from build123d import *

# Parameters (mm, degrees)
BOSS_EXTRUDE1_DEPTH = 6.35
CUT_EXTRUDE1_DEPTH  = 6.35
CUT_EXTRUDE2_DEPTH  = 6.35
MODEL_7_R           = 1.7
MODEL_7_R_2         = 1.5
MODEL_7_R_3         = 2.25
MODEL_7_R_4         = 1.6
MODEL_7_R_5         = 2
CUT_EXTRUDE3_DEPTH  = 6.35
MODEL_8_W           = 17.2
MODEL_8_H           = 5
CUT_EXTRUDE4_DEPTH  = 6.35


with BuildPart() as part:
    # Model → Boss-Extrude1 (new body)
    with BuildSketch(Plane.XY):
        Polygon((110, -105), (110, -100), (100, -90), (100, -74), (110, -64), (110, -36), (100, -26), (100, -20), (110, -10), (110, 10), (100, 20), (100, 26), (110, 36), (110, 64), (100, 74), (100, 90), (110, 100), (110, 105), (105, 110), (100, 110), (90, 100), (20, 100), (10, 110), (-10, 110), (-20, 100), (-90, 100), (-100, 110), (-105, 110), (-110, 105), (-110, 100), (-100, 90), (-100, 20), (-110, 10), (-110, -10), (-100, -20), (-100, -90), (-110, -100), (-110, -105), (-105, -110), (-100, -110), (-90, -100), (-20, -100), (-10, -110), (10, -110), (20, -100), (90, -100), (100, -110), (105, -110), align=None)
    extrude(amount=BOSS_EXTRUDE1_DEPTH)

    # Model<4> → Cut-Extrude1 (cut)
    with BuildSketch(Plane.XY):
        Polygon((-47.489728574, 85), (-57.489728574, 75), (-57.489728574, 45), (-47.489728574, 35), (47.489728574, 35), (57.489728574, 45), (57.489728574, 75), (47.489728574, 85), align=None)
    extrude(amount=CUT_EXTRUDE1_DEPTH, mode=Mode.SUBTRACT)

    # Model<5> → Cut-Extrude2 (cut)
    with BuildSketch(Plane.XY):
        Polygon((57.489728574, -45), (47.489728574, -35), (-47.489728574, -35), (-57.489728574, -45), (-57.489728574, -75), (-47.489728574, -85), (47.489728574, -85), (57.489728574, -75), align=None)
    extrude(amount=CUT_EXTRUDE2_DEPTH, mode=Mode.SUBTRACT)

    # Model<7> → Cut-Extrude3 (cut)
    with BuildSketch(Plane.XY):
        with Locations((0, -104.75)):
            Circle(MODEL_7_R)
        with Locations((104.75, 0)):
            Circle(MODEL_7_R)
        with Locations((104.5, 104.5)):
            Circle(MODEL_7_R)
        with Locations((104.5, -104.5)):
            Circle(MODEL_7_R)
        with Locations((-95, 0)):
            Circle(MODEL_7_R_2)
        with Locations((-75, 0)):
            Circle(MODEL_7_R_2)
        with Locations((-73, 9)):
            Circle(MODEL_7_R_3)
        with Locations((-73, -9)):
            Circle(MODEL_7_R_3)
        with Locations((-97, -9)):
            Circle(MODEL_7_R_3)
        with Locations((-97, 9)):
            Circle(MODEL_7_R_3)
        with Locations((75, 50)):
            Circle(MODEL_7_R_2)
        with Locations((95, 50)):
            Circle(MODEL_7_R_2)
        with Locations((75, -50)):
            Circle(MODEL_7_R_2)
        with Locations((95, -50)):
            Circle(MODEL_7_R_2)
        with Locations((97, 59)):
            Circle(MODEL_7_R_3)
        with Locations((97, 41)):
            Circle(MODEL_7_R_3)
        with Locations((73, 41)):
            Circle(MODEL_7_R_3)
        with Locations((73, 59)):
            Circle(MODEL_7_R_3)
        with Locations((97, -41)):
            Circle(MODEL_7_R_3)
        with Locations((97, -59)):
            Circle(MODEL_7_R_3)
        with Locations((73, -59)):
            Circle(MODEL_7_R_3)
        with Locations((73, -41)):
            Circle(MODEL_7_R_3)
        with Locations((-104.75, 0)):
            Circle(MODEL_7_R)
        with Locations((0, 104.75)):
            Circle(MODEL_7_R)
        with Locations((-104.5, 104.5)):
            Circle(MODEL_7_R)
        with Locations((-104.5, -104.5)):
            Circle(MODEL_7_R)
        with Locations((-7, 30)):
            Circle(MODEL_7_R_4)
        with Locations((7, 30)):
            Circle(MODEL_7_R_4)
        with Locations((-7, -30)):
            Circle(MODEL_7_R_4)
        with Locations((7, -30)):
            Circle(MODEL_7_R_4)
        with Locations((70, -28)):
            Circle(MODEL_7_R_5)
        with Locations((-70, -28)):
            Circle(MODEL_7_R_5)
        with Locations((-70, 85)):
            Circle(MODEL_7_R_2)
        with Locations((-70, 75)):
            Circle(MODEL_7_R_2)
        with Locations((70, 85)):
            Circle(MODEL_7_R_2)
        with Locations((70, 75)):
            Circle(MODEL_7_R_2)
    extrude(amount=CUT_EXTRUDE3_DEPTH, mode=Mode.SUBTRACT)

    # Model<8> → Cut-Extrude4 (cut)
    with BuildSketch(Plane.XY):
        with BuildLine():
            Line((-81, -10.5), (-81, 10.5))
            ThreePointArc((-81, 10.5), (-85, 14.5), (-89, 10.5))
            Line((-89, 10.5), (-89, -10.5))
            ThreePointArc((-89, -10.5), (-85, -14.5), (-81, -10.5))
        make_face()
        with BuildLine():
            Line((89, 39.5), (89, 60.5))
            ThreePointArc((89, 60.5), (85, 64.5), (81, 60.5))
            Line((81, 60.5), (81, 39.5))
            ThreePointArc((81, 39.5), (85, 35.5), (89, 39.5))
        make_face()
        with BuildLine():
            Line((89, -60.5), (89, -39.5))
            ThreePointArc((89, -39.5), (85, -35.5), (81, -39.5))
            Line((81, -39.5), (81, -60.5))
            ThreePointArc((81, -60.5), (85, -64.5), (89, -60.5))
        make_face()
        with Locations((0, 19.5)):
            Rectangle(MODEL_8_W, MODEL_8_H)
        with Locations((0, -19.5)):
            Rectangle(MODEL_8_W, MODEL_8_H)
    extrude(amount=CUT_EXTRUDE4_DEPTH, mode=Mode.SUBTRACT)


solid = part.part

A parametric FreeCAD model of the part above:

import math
import FreeCAD as App
import Part
import Sketcher

V = App.Vector
Q = App.Units.Quantity


def add_polygon(sketch, points):
    """Adds a closed chain of lines whose ends are joined by coincident constraints."""
    first, n = sketch.GeometryCount, len(points)
    for a, b in zip(points, points[1:] + points[:1]):
        sketch.addGeometry(Part.LineSegment(App.Vector(*a, 0), App.Vector(*b, 0)), False)
    for i in range(n):
        sketch.addConstraint(Sketcher.Constraint("Coincident", first + i, 2, first + (i + 1) % n, 1))

doc = App.newDocument("Part")
body = doc.addObject("PartDesign::Body", "Body")

sketch1 = body.newObject("Sketcher::SketchObject", "Sketch")
sketch1.AttachmentSupport = (doc.getObject("XY_Plane"), [""])
sketch1.MapMode = "FlatFace"
add_polygon(sketch1, [(110, -105), (110, -100), (100, -90), (100, -74), (110, -64), (110, -36), (100, -26), (100, -20), (110, -10), (110, 10), (100, 20), (100, 26), (110, 36), (110, 64), (100, 74), (100, 90), (110, 100), (110, 105), (105, 110), (100, 110), (90, 100), (20, 100), (10, 110), (-10, 110), (-20, 100), (-90, 100), (-100, 110), (-105, 110), (-110, 105), (-110, 100), (-100, 90), (-100, 20), (-110, 10), (-110, -10), (-100, -20), (-100, -90), (-110, -100), (-110, -105), (-105, -110), (-100, -110), (-90, -100), (-20, -100), (-10, -110), (10, -110), (20, -100), (90, -100), (100, -110), (105, -110)])
sketch1.addConstraint([
    Sketcher.Constraint("Vertical", 0),
    Sketcher.Constraint("Vertical", 2),
    Sketcher.Constraint("Vertical", 4),
    Sketcher.Constraint("Vertical", 6),
    Sketcher.Constraint("Vertical", 8),
    Sketcher.Constraint("Vertical", 10),
    Sketcher.Constraint("Vertical", 12),
    Sketcher.Constraint("Vertical", 14),
    Sketcher.Constraint("Vertical", 16),
    Sketcher.Constraint("Horizontal", 18),
    Sketcher.Constraint("Horizontal", 20),
    Sketcher.Constraint("Horizontal", 22),
    Sketcher.Constraint("Horizontal", 24),
    Sketcher.Constraint("Horizontal", 26),
    Sketcher.Constraint("Vertical", 28),
    Sketcher.Constraint("Vertical", 30),
    Sketcher.Constraint("Vertical", 32),
    Sketcher.Constraint("Vertical", 34),
    Sketcher.Constraint("Vertical", 36),
    Sketcher.Constraint("Horizontal", 38),
    Sketcher.Constraint("Horizontal", 40),
    Sketcher.Constraint("Horizontal", 42),
    Sketcher.Constraint("Horizontal", 44),
    Sketcher.Constraint("Horizontal", 46),
    Sketcher.Constraint("Symmetric", 0, 2, 28, 2, -1, 1),
    Sketcher.Constraint("Symmetric", 1, 2, 29, 2, -1, 1),
    Sketcher.Constraint("Symmetric", 6, 2, 30, 2, -1, 1),
    Sketcher.Constraint("Symmetric", 7, 2, 31, 2, -1, 1),
    Sketcher.Constraint("Symmetric", 9, 2, 33, 2, -1, 1),
    Sketcher.Constraint("Symmetric", 14, 2, 34, 2, -1, 1),
    Sketcher.Constraint("Symmetric", 15, 2, 35, 2, -1, 1),
    Sketcher.Constraint("Symmetric", 17, 2, 37, 2, -1, 1),
    Sketcher.Constraint("Symmetric", 19, 2, 39, 2, -1, 1),
    Sketcher.Constraint("Symmetric", 21, 2, 41, 2, -1, 1),
    Sketcher.Constraint("Symmetric", 23, 2, 43, 2, -1, 1),
    Sketcher.Constraint("Symmetric", 25, 2, 45, 2, -1, 1),
    Sketcher.Constraint("Symmetric", 20, 2, 23, 2, -2),
    Sketcher.Constraint("Symmetric", 18, 2, 25, 2, -2),
    Sketcher.Constraint("Symmetric", 16, 2, 27, 2, -2),
    Sketcher.Constraint("Symmetric", 14, 2, 29, 2, -2),
    Sketcher.Constraint("Symmetric", 4, 2, 11, 2, -1),
    Sketcher.Constraint("Perpendicular", 1, 3),
    Sketcher.Constraint("Perpendicular", 3, 5),
    Sketcher.Constraint("Perpendicular", 5, 7),
    Sketcher.Constraint("Perpendicular", 7, 9),
    Sketcher.Constraint("Perpendicular", 9, 11),
    Sketcher.Constraint("Perpendicular", 11, 13),
    Sketcher.Constraint("Perpendicular", 13, 15),
    Sketcher.Constraint("Perpendicular", 15, 17),
    Sketcher.Constraint("Perpendicular", 17, 19),
    Sketcher.Constraint("Perpendicular", 19, 21),
    Sketcher.Constraint("Perpendicular", 21, 23),
    Sketcher.Constraint("Perpendicular", 23, 25),
    Sketcher.Constraint("Perpendicular", 25, 27),
    Sketcher.Constraint("Perpendicular", 31, 33),
    Sketcher.Constraint("Perpendicular", 35, 37),
    Sketcher.Constraint("Perpendicular", 37, 39),
    Sketcher.Constraint("Perpendicular", 39, 41),
    Sketcher.Constraint("Perpendicular", 41, 43),
    Sketcher.Constraint("Perpendicular", 43, 45),
    Sketcher.Constraint("Perpendicular", 45, 47),
    Sketcher.Constraint("Horizontal", 15, 2, 19, 2),
    Sketcher.Constraint("Horizontal", 18, 2, 21, 2),
    Sketcher.Constraint("Horizontal", 24, 2, 28, 2),
    Sketcher.Constraint("Horizontal", 9, 2, 30, 2),
    Sketcher.Constraint("Horizontal", 36, 2, 47, 2),
    Sketcher.Constraint("Vertical", 0, 2, 3, 2),
    Sketcher.Constraint("Vertical", 4, 2, 7, 2),
    Sketcher.Constraint("Vertical", 14, 2, 18, 2),
    Sketcher.Constraint("Equal", 46, 0),
    Sketcher.Constraint("Equal", 42, 8),
    Sketcher.Constraint("Equal", 4, 12),
    Sketcher.Constraint("Equal", 44, 30),
    Sketcher.Constraint("DistanceX", 18, 2, 18, 1, Q("5 mm")),
    Sketcher.Constraint("DistanceX", 20, 2, 20, 1, Q("70 mm")),
    Sketcher.Constraint("DistanceX", 22, 2, 22, 1, Q("20 mm")),
    Sketcher.Constraint("DistanceY", 2, 1, 2, 2, Q("16 mm")),
    Sketcher.Constraint("DistanceY", 4, 1, 4, 2, Q("28 mm")),
    Sketcher.Constraint("DistanceY", 6, 1, 6, 2, Q("6 mm")),
])
pad1 = body.newObject("PartDesign::Pad", "Pad")
pad1.Profile = sketch1
pad1.Length = 6.35

sketch2 = body.newObject("Sketcher::SketchObject", "Sketch001")
sketch2.AttachmentSupport = (doc.getObject("XY_Plane"), [""])
sketch2.MapMode = "FlatFace"
add_polygon(sketch2, [(-47.489729, 85), (-57.489729, 75), (-57.489729, 45), (-47.489729, 35), (47.489729, 35), (57.489729, 45), (57.489729, 75), (47.489729, 85)])
sketch2.addConstraint([
    Sketcher.Constraint("Vertical", 1),
    Sketcher.Constraint("Horizontal", 3),
    Sketcher.Constraint("Vertical", 5),
    Sketcher.Constraint("Horizontal", 7),
    Sketcher.Constraint("Symmetric", 1, 2, 4, 2, -2),
    Sketcher.Constraint("Perpendicular", 0, 2),
    Sketcher.Constraint("Perpendicular", 2, 4),
    Sketcher.Constraint("Perpendicular", 4, 6),
    Sketcher.Constraint("Horizontal", 0, 2, 5, 2),
    Sketcher.Constraint("Vertical", 3, 2, 6, 2),
    Sketcher.Constraint("Vertical", 2, 2, 7, 2),
    Sketcher.Constraint("DistanceY", 1, 2, 1, 1, Q("30 mm")),
    Sketcher.Constraint("DistanceY", -1, 1, 0, 2, Q("75 mm")),
    Sketcher.Constraint("DistanceY", -1, 1, 2, 2, Q("35 mm")),
    Sketcher.Constraint("DistanceX", 3, 1, 3, 2, Q("94.979457 mm")),
])
pocket1 = body.newObject("PartDesign::Pocket", "Pocket")
pocket1.Profile = sketch2
pocket1.Length = 6.35
pocket1.Reversed = True

sketch3 = body.newObject("Sketcher::SketchObject", "Sketch002")
sketch3.AttachmentSupport = (doc.getObject("XY_Plane"), [""])
sketch3.MapMode = "FlatFace"
add_polygon(sketch3, [(57.489729, -45), (47.489729, -35), (-47.489729, -35), (-57.489729, -45), (-57.489729, -75), (-47.489729, -85), (47.489729, -85), (57.489729, -75)])
sketch3.addConstraint([
    Sketcher.Constraint("Horizontal", 1),
    Sketcher.Constraint("Vertical", 3),
    Sketcher.Constraint("Horizontal", 5),
    Sketcher.Constraint("Vertical", 7),
    Sketcher.Constraint("Symmetric", 3, 2, 6, 2, -2),
    Sketcher.Constraint("Perpendicular", 0, 2),
    Sketcher.Constraint("Perpendicular", 2, 4),
    Sketcher.Constraint("Perpendicular", 4, 6),
    Sketcher.Constraint("Horizontal", 2, 2, 7, 2),
    Sketcher.Constraint("Vertical", 1, 2, 4, 2),
    Sketcher.Constraint("Vertical", 0, 2, 5, 2),
    Sketcher.Constraint("DistanceY", 3, 2, 3, 1, Q("30 mm")),
    Sketcher.Constraint("DistanceY", 0, 2, -1, 1, Q("35 mm")),
    Sketcher.Constraint("DistanceY", 2, 2, -1, 1, Q("45 mm")),
    Sketcher.Constraint("DistanceX", 1, 2, 1, 1, Q("94.979457 mm")),
])
pocket2 = body.newObject("PartDesign::Pocket", "Pocket001")
pocket2.Profile = sketch3
pocket2.Length = 6.35
pocket2.Reversed = True

sketch4 = body.newObject("Sketcher::SketchObject", "Sketch003")
sketch4.AttachmentSupport = (doc.getObject("XY_Plane"), [""])
sketch4.MapMode = "FlatFace"
sketch4.addGeometry([
    Part.Circle(V(0, -104.75, 0), V(0, 0, 1), 1.7),
    Part.Circle(V(104.75, 0, 0), V(0, 0, 1), 1.7),
    Part.Circle(V(104.5, 104.5, 0), V(0, 0, 1), 1.7),
    Part.Circle(V(104.5, -104.5, 0), V(0, 0, 1), 1.7),
    Part.Circle(V(-95, 0, 0), V(0, 0, 1), 1.5),
    Part.Circle(V(-75, 0, 0), V(0, 0, 1), 1.5),
    Part.Circle(V(-73, 9, 0), V(0, 0, 1), 2.25),
    Part.Circle(V(-73, -9, 0), V(0, 0, 1), 2.25),
    Part.Circle(V(-97, -9, 0), V(0, 0, 1), 2.25),
    Part.Circle(V(-97, 9, 0), V(0, 0, 1), 2.25),
    Part.Circle(V(75, 50, 0), V(0, 0, 1), 1.5),
    Part.Circle(V(95, 50, 0), V(0, 0, 1), 1.5),
    Part.Circle(V(75, -50, 0), V(0, 0, 1), 1.5),
    Part.Circle(V(95, -50, 0), V(0, 0, 1), 1.5),
    Part.Circle(V(97, 59, 0), V(0, 0, 1), 2.25),
    Part.Circle(V(97, 41, 0), V(0, 0, 1), 2.25),
    Part.Circle(V(73, 41, 0), V(0, 0, 1), 2.25),
    Part.Circle(V(73, 59, 0), V(0, 0, 1), 2.25),
    Part.Circle(V(97, -41, 0), V(0, 0, 1), 2.25),
    Part.Circle(V(97, -59, 0), V(0, 0, 1), 2.25),
    Part.Circle(V(73, -59, 0), V(0, 0, 1), 2.25),
    Part.Circle(V(73, -41, 0), V(0, 0, 1), 2.25),
    Part.Circle(V(-104.75, 0, 0), V(0, 0, 1), 1.7),
    Part.Circle(V(0, 104.75, 0), V(0, 0, 1), 1.7),
    Part.Circle(V(-104.5, 104.5, 0), V(0, 0, 1), 1.7),
    Part.Circle(V(-104.5, -104.5, 0), V(0, 0, 1), 1.7),
    Part.Circle(V(-7, 30, 0), V(0, 0, 1), 1.6),
    Part.Circle(V(7, 30, 0), V(0, 0, 1), 1.6),
    Part.Circle(V(-7, -30, 0), V(0, 0, 1), 1.6),
    Part.Circle(V(7, -30, 0), V(0, 0, 1), 1.6),
    Part.Circle(V(70, -28, 0), V(0, 0, 1), 2),
    Part.Circle(V(-70, -28, 0), V(0, 0, 1), 2),
    Part.Circle(V(-70, 85, 0), V(0, 0, 1), 1.5),
    Part.Circle(V(-70, 75, 0), V(0, 0, 1), 1.5),
    Part.Circle(V(70, 85, 0), V(0, 0, 1), 1.5),
    Part.Circle(V(70, 75, 0), V(0, 0, 1), 1.5),
], False)
sketch4.addConstraint([
    Sketcher.Constraint("Equal", 0, 1),
    Sketcher.Constraint("Equal", 1, 2),
    Sketcher.Constraint("Equal", 2, 3),
    Sketcher.Constraint("Equal", 4, 5),
    Sketcher.Constraint("Equal", 6, 7),
    Sketcher.Constraint("Equal", 7, 8),
    Sketcher.Constraint("Equal", 8, 9),
    Sketcher.Constraint("Equal", 5, 10),
    Sketcher.Constraint("Equal", 10, 11),
    Sketcher.Constraint("Equal", 11, 12),
    Sketcher.Constraint("Equal", 12, 13),
    Sketcher.Constraint("Equal", 9, 14),
    Sketcher.Constraint("Equal", 14, 15),
    Sketcher.Constraint("Equal", 15, 16),
    Sketcher.Constraint("Equal", 16, 17),
    Sketcher.Constraint("Equal", 17, 18),
    Sketcher.Constraint("Equal", 18, 19),
    Sketcher.Constraint("Equal", 19, 20),
    Sketcher.Constraint("Equal", 20, 21),
    Sketcher.Constraint("Equal", 3, 22),
    Sketcher.Constraint("Equal", 22, 23),
    Sketcher.Constraint("Equal", 23, 24),
    Sketcher.Constraint("Equal", 24, 25),
    Sketcher.Constraint("Equal", 26, 27),
    Sketcher.Constraint("Equal", 27, 28),
    Sketcher.Constraint("Equal", 28, 29),
    Sketcher.Constraint("Equal", 30, 31),
    Sketcher.Constraint("Equal", 13, 32),
    Sketcher.Constraint("Equal", 32, 33),
    Sketcher.Constraint("Equal", 33, 34),
    Sketcher.Constraint("Equal", 34, 35),
    Sketcher.Constraint("Symmetric", 1, 3, 22, 3, -1, 1),
    Sketcher.Constraint("Symmetric", 0, 3, 23, 3, -1, 1),
    Sketcher.Constraint("Symmetric", 3, 3, 24, 3, -1, 1),
    Sketcher.Constraint("Symmetric", 2, 3, 25, 3, -1, 1),
    Sketcher.Constraint("Symmetric", 27, 3, 28, 3, -1, 1),
    Sketcher.Constraint("Symmetric", 26, 3, 29, 3, -1, 1),
    Sketcher.Constraint("Symmetric", 2, 3, 24, 3, -2),
    Sketcher.Constraint("Symmetric", 26, 3, 27, 3, -2),
    Sketcher.Constraint("Symmetric", 30, 3, 31, 3, -2),
    Sketcher.Constraint("Symmetric", 32, 3, 34, 3, -2),
    Sketcher.Constraint("Symmetric", 33, 3, 35, 3, -2),
    Sketcher.Constraint("Symmetric", 6, 3, 7, 3, -1),
    Sketcher.Constraint("Symmetric", 8, 3, 9, 3, -1),
    Sketcher.Constraint("Symmetric", 10, 3, 12, 3, -1),
    Sketcher.Constraint("Symmetric", 11, 3, 13, 3, -1),
    Sketcher.Constraint("Symmetric", 15, 3, 18, 3, -1),
    Sketcher.Constraint("Symmetric", 14, 3, 19, 3, -1),
    Sketcher.Constraint("Symmetric", 17, 3, 20, 3, -1),
    Sketcher.Constraint("Symmetric", 16, 3, 21, 3, -1),
    Sketcher.Constraint("PointOnObject", 0, 3, -2),
    Sketcher.Constraint("PointOnObject", 1, 3, -1),
    Sketcher.Constraint("PointOnObject", 4, 3, -1),
    Sketcher.Constraint("PointOnObject", 5, 3, -1),
    Sketcher.Constraint("Horizontal", 7, 3, 8, 3),
    Sketcher.Constraint("Horizontal", 10, 3, 11, 3),
    Sketcher.Constraint("Horizontal", 15, 3, 16, 3),
    Sketcher.Constraint("Horizontal", 14, 3, 17, 3),
    Sketcher.Constraint("Vertical", 14, 3, 15, 3),
    Sketcher.Constraint("Vertical", 16, 3, 17, 3),
    Sketcher.Constraint("Vertical", 31, 3, 32, 3),
    Sketcher.Constraint("Vertical", 32, 3, 33, 3),
    Sketcher.Constraint("Diameter", 4, Q("3 mm")),
    Sketcher.Constraint("Diameter", 30, Q("4 mm")),
    Sketcher.Constraint("Diameter", 0, Q("3.4 mm")),
    Sketcher.Constraint("Diameter", 6, Q("4.5 mm")),
    Sketcher.Constraint("Diameter", 26, Q("3.2 mm")),
    Sketcher.Constraint("DistanceX", 4, 3, -1, 1, Q("95 mm")),
    Sketcher.Constraint("DistanceX", 5, 3, -1, 1, Q("75 mm")),
    Sketcher.Constraint("DistanceX", 6, 3, -1, 1, Q("73 mm")),
    Sketcher.Constraint("DistanceY", -1, 1, 6, 3, Q("9 mm")),
    Sketcher.Constraint("DistanceX", 8, 3, -1, 1, Q("97 mm")),
    Sketcher.Constraint("DistanceX", -1, 1, 10, 3, Q("75 mm")),
    Sketcher.Constraint("DistanceY", -1, 1, 10, 3, Q("50 mm")),
    Sketcher.Constraint("DistanceX", -1, 1, 11, 3, Q("95 mm")),
    Sketcher.Constraint("DistanceX", -1, 1, 14, 3, Q("97 mm")),
    Sketcher.Constraint("DistanceY", -1, 1, 14, 3, Q("59 mm")),
    Sketcher.Constraint("DistanceY", -1, 1, 15, 3, Q("41 mm")),
    Sketcher.Constraint("DistanceX", -1, 1, 16, 3, Q("73 mm")),
    Sketcher.Constraint("DistanceX", 26, 3, -1, 1, Q("7 mm")),
    Sketcher.Constraint("DistanceY", -1, 1, 26, 3, Q("30 mm")),
    Sketcher.Constraint("DistanceX", -1, 1, 30, 3, Q("70 mm")),
    Sketcher.Constraint("DistanceY", 30, 3, -1, 1, Q("28 mm")),
    Sketcher.Constraint("DistanceY", -1, 1, 32, 3, Q("85 mm")),
    Sketcher.Constraint("DistanceY", -1, 1, 33, 3, Q("75 mm")),
    Sketcher.Constraint("DistanceY", 3, 3, 2, 3, Q("209 mm")),
    Sketcher.Constraint("DistanceX", -1, 1, 2, 3, Q("104.5 mm")),
    Sketcher.Constraint("DistanceY", 0, 3, -1, 1, Q("104.75 mm")),
    Sketcher.Constraint("DistanceX", -1, 1, 1, 3, Q("104.75 mm")),
])
pocket3 = body.newObject("PartDesign::Pocket", "Pocket002")
pocket3.Profile = sketch4
pocket3.Length = 6.35
pocket3.Reversed = True

sketch5 = body.newObject("Sketcher::SketchObject", "Sketch004")
sketch5.AttachmentSupport = (doc.getObject("XY_Plane"), [""])
sketch5.MapMode = "FlatFace"
sketch5.addGeometry(Part.LineSegment(V(-81, -10.5, 0), V(-81, 10.5, 0)), False)
sketch5.addGeometry(Part.ArcOfCircle(Part.Circle(V(-85, 10.5, 0), V(0, 0, 1), 4), math.radians(0), math.radians(180)), False)
sketch5.addGeometry(Part.LineSegment(V(-89, 10.5, 0), V(-89, -10.5, 0)), False)
sketch5.addGeometry(Part.ArcOfCircle(Part.Circle(V(-85, -10.5, 0), V(0, 0, 1), 4), math.radians(180), math.radians(360)), False)
sketch5.addGeometry(Part.LineSegment(V(89, 39.5, 0), V(89, 60.5, 0)), False)
sketch5.addGeometry(Part.ArcOfCircle(Part.Circle(V(85, 60.5, 0), V(0, 0, 1), 4), math.radians(0), math.radians(180)), False)
sketch5.addGeometry(Part.LineSegment(V(81, 60.5, 0), V(81, 39.5, 0)), False)
sketch5.addGeometry(Part.ArcOfCircle(Part.Circle(V(85, 39.5, 0), V(0, 0, 1), 4), math.radians(180), math.radians(360)), False)
sketch5.addGeometry(Part.LineSegment(V(89, -60.5, 0), V(89, -39.5, 0)), False)
sketch5.addGeometry(Part.ArcOfCircle(Part.Circle(V(85, -39.5, 0), V(0, 0, 1), 4), math.radians(0), math.radians(180)), False)
sketch5.addGeometry(Part.LineSegment(V(81, -39.5, 0), V(81, -60.5, 0)), False)
sketch5.addGeometry(Part.ArcOfCircle(Part.Circle(V(85, -60.5, 0), V(0, 0, 1), 4), math.radians(180), math.radians(360)), False)
add_polygon(sketch5, [(-8.6, 22), (-8.6, 17), (8.6, 17), (8.6, 22)])
add_polygon(sketch5, [(-8.6, -17), (-8.6, -22), (8.6, -22), (8.6, -17)])
sketch5.addConstraint([
    Sketcher.Constraint("Tangent", 0, 2, 1, 1),
    Sketcher.Constraint("Tangent", 1, 2, 2, 1),
    Sketcher.Constraint("Tangent", 2, 2, 3, 1),
    Sketcher.Constraint("Tangent", 3, 2, 0, 1),
    Sketcher.Constraint("Tangent", 4, 2, 5, 1),
    Sketcher.Constraint("Tangent", 5, 2, 6, 1),
    Sketcher.Constraint("Tangent", 6, 2, 7, 1),
    Sketcher.Constraint("Tangent", 7, 2, 4, 1),
    Sketcher.Constraint("Tangent", 8, 2, 9, 1),
    Sketcher.Constraint("Tangent", 9, 2, 10, 1),
    Sketcher.Constraint("Tangent", 10, 2, 11, 1),
    Sketcher.Constraint("Tangent", 11, 2, 8, 1),
    Sketcher.Constraint("Vertical", 0),
    Sketcher.Constraint("Vertical", 2),
    Sketcher.Constraint("Vertical", 4),
    Sketcher.Constraint("Vertical", 6),
    Sketcher.Constraint("Vertical", 8),
    Sketcher.Constraint("Vertical", 10),
    Sketcher.Constraint("Vertical", 12),
    Sketcher.Constraint("Horizontal", 13),
    Sketcher.Constraint("Vertical", 14),
    Sketcher.Constraint("Horizontal", 15),
    Sketcher.Constraint("Vertical", 16),
    Sketcher.Constraint("Horizontal", 17),
    Sketcher.Constraint("Vertical", 18),
    Sketcher.Constraint("Horizontal", 19),
    Sketcher.Constraint("Equal", 3, 5),
    Sketcher.Constraint("Equal", 7, 9),
    Sketcher.Constraint("Symmetric", 14, 2, 16, 2, -1, 1),
    Sketcher.Constraint("Symmetric", 12, 2, 18, 2, -1, 1),
    Sketcher.Constraint("Symmetric", 7, 3, 9, 3, -1),
    Sketcher.Constraint("Vertical", 15, 2, 16, 2),
    Sketcher.Constraint("Equal", 2, 4),
    Sketcher.Constraint("Equal", 6, 8),
    Sketcher.Constraint("Radius", 1, Q("4 mm")),
    Sketcher.Constraint("DistanceY", 0, 1, 0, 2, Q("21 mm")),
    Sketcher.Constraint("DistanceY", 12, 2, 12, 1, Q("5 mm")),
    Sketcher.Constraint("DistanceX", 13, 1, 13, 2, Q("17.2 mm")),
    Sketcher.Constraint("DistanceX", 1, 3, -1, 1, Q("85 mm")),
    Sketcher.Constraint("DistanceX", -1, 1, 5, 3, Q("85 mm")),
    Sketcher.Constraint("DistanceY", -1, 1, 12, 2, Q("17 mm")),
    Sketcher.Constraint("DistanceY", 1, 3, 5, 3, Q("50 mm")),
    Sketcher.Constraint("DistanceY", 9, 3, 7, 3, Q("79 mm")),
])
pocket4 = body.newObject("PartDesign::Pocket", "Pocket003")
pocket4.Profile = sketch5
pocket4.Length = 6.35
pocket4.Reversed = True

doc.recompute()
